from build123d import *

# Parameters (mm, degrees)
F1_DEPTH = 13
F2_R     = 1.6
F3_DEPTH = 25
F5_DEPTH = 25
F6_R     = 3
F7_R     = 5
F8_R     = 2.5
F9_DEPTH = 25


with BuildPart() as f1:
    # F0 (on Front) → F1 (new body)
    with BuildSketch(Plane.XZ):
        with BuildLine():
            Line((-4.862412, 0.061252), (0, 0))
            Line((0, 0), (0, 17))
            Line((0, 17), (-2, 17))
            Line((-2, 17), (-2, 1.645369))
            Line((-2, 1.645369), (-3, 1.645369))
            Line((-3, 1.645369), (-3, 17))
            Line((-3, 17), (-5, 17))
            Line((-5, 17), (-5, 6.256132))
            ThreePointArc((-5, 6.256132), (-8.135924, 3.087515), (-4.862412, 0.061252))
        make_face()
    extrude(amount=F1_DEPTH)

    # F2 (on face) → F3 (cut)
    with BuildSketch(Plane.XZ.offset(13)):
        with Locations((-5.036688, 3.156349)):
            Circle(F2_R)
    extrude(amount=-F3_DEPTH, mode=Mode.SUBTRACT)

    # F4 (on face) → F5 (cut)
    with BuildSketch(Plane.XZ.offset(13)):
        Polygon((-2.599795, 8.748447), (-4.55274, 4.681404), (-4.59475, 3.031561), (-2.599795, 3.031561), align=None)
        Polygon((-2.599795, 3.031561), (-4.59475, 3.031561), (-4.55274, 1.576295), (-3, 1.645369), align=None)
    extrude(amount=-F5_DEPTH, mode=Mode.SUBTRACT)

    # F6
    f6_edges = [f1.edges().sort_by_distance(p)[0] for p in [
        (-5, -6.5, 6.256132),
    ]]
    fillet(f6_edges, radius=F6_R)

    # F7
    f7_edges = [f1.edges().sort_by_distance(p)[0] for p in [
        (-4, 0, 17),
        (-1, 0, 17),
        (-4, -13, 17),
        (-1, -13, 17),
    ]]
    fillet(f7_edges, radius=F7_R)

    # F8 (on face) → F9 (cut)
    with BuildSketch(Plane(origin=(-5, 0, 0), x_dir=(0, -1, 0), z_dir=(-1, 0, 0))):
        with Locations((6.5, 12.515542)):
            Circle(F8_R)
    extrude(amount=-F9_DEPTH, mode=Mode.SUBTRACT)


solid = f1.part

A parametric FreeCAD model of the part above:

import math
import FreeCAD as App
import Part
import Sketcher
from FreeCAD import Vector
Q = App.Units.Quantity


def edges_at(feature, points):
    """Names of the edges that pass closest to the given points."""
    edges = feature.Shape.Edges
    near = lambda p: min(range(len(edges)), key=lambda i: edges[i].distToShape(Part.Vertex(*p))[0])
    return sorted({f"Edge{near(p) + 1}" for p in points})


def add_polygon(sketch, points):
    """Adds a closed chain of lines whose ends are joined by coincident constraints."""
    first, n = sketch.GeometryCount, len(points)
    for a, b in zip(points, points[1:] + points[:1]):
        sketch.addGeometry(Part.LineSegment(App.Vector(*a, 0), App.Vector(*b, 0)), False)
    for i in range(n):
        sketch.addConstraint(Sketcher.Constraint("Coincident", first + i, 2, first + (i + 1) % n, 1))

doc = App.newDocument("Part")
body = doc.addObject("PartDesign::Body", "Body")

# Sketch on XZ plane
sketch1 = body.newObject("Sketcher::SketchObject", "Sketch")
sketch1.AttachmentSupport = (doc.getObject("XZ_Plane"), [""])
sketch1.MapMode = "FlatFace"
sketch1.addGeometry([
    Part.LineSegment(Vector(-4.9, 0.1, 0), Vector(0, 0, 0)),  # 0
    Part.LineSegment(Vector(0, 0, 0), Vector(0, 17, 0)),  # 1
    Part.LineSegment(Vector(0, 17, 0), Vector(-2, 17, 0)),  # 2
    Part.LineSegment(Vector(-2, 17, 0), Vector(-2, 1.6, 0)),  # 3
    Part.LineSegment(Vector(-2, 1.6, 0), Vector(-3, 1.6, 0)),  # 4
    Part.LineSegment(Vector(-3, 1.6, 0), Vector(-3, 17, 0)),  # 5
    Part.LineSegment(Vector(-3, 17, 0), Vector(-5, 17, 0)),  # 6
    Part.LineSegment(Vector(-5, 17, 0), Vector(-5, 6.3, 0)),  # 7
    Part.ArcOfCircle(Part.Circle(Vector(-5, 3.2, 0), Vector(0, 0, 1), 3.1), math.radians(89), math.radians(273)),  # 8
], False)
sketch1.addConstraint([
    Sketcher.Constraint("Coincident", 0, 2, 1, 1),
    Sketcher.Constraint("Coincident", 1, 2, 2, 1),
    Sketcher.Constraint("Coincident", 2, 2, 3, 1),
    Sketcher.Constraint("Coincident", 3, 2, 4, 1),
    Sketcher.Constraint("Coincident", 4, 2, 5, 1),
    Sketcher.Constraint("Coincident", 5, 2, 6, 1),
    Sketcher.Constraint("Coincident", 6, 2, 7, 1),
    Sketcher.Constraint("Coincident", 7, 2, 8, 1),
    Sketcher.Constraint("Coincident", 8, 2, 0, 1),
    Sketcher.Constraint("Vertical", 1),
    Sketcher.Constraint("Horizontal", 2),
    Sketcher.Constraint("Vertical", 3),
    Sketcher.Constraint("Horizontal", 4),
    Sketcher.Constraint("Vertical", 5),
    Sketcher.Constraint("Horizontal", 6),
    Sketcher.Constraint("Vertical", 7),
    Sketcher.Constraint("Coincident", 0, 2, -1, 1),
    Sketcher.Constraint("Horizontal", 2, 2, 5, 2),
    Sketcher.Constraint("Equal", 2, 6),
    Sketcher.Constraint("Radius", 8, Q("3.1 mm")),
    Sketcher.Constraint("DistanceX", 2, 2, 2, 1, Q("2 mm")),
    Sketcher.Constraint("DistanceX", 4, 2, 4, 1, Q("1 mm")),
    Sketcher.Constraint("DistanceY", 1, 1, 1, 2, Q("17 mm")),
    Sketcher.Constraint("DistanceY", 3, 2, 3, 1, Q("15.354631 mm")),
    Sketcher.Constraint("DistanceY", 7, 2, 7, 1, Q("10.743868 mm")),
    Sketcher.Constraint("DistanceX", 8, 3, -1, 1, Q("5.036688 mm")),
    Sketcher.Constraint("DistanceY", 8, 2, 7, 2, Q("6.19488 mm")),
])
pad1 = body.newObject("PartDesign::Pad", "Pad")
pad1.Profile = sketch1
pad1.Length = 13

# Sketch on XZ plane
sketch2 = body.newObject("Sketcher::SketchObject", "Sketch001")
sketch2.AttachmentSupport = (doc.getObject("XZ_Plane"), [""])
sketch2.MapMode = "FlatFace"
sketch2.AttachmentOffset = App.Placement(Vector(0, 0, 13), App.Rotation())
sketch2.addGeometry(Part.Circle(Vector(-5, 3.2, 0), Vector(0, 0, 1), 1.6), False)
sketch2.addConstraint([
    Sketcher.Constraint("Diameter", 0, Q("3.2 mm")),
    Sketcher.Constraint("DistanceY", -1, 1, 0, 3, Q("3.156349 mm")),
    Sketcher.Constraint("DistanceX", 0, 3, -1, 1, Q("5.036688 mm")),
])
pocket1 = body.newObject("PartDesign::Pocket", "Pocket")
pocket1.Profile = sketch2
pocket1.Length = 25

# Sketch on XZ plane
sketch3 = body.newObject("Sketcher::SketchObject", "Sketch002")
sketch3.AttachmentSupport = (doc.getObject("XZ_Plane"), [""])
sketch3.MapMode = "FlatFace"
sketch3.AttachmentOffset = App.Placement(Vector(0, 0, 13), App.Rotation())
add_polygon(sketch3, [(-2.6, 8.7), (-4.6, 4.7), (-4.6, 3), (-4.6, 1.6), (-3, 1.6), (-2.6, 3)])  # lines 0-5
sketch3.addConstraint([
    Sketcher.Constraint("Vertical", 5),
    Sketcher.Constraint("Horizontal", 1, 2, 4, 2),
    Sketcher.Constraint("Vertical", 0, 2, 2, 2),
    Sketcher.Constraint("DistanceX", 3, 2, -1, 1, Q("3 mm")),
    Sketcher.Constraint("DistanceY", 5, 1, 5, 2, Q("5.716886 mm")),
    Sketcher.Constraint("DistanceX", 0, 2, -1, 1, Q("4.55274 mm")),
    Sketcher.Constraint("DistanceX", 1, 2, -1, 1, Q("4.59475 mm")),
    Sketcher.Constraint("DistanceY", -1, 1, 1, 2, Q("3.031561 mm")),
    Sketcher.Constraint("DistanceY", -1, 1, 3, 2, Q("1.645369 mm")),
    Sketcher.Constraint("DistanceY", 2, 2, 0, 2, Q("3.105109 mm")),
    Sketcher.Constraint("Distance", 0, Q("4.511633 mm")),
    Sketcher.Constraint("Distance", 1, Q("1.650378 mm")),
])
pocket2 = body.newObject("PartDesign::Pocket", "Pocket001")
pocket2.Profile = sketch3
pocket2.Length = 25
doc.recompute()

fillet = body.newObject("PartDesign::Fillet", "Fillet")
fillet.Base = (pocket2, edges_at(pocket2, [(-5, -6.5, 6.256)]))
fillet.Radius = 3
doc.recompute()

fillet2 = body.newObject("PartDesign::Fillet", "Fillet001")
fillet2.Base = (fillet, edges_at(fillet, [
    (-4, 0, 17),
    (-1, 0, 17),
    (-4, -13, 17),
    (-1, -13, 17),
]))
fillet2.Radius = 5

# Sketch on YZ plane
sketch4 = body.newObject("Sketcher::SketchObject", "Sketch003")
sketch4.AttachmentSupport = (doc.getObject("YZ_Plane"), [""])
sketch4.MapMode = "FlatFace"
sketch4.AttachmentOffset = App.Placement(Vector(0, 0, -5), App.Rotation())
sketch4.addGeometry(Part.Circle(Vector(-6.5, 12.5, 0), Vector(0, 0, 1), 2.5), False)
sketch4.addConstraint([
    Sketcher.Constraint("Diameter", 0, Q("5 mm")),
    Sketcher.Constraint("DistanceX", 0, 3, -1, 1, Q("6.5 mm")),
    Sketcher.Constraint("DistanceY", -1, 1, 0, 3, Q("12.515542 mm")),
])
pocket3 = body.newObject("PartDesign::Pocket", "Pocket002")
pocket3.Profile = sketch4
pocket3.Length = 25
pocket3.Reversed = True

doc.recompute()
